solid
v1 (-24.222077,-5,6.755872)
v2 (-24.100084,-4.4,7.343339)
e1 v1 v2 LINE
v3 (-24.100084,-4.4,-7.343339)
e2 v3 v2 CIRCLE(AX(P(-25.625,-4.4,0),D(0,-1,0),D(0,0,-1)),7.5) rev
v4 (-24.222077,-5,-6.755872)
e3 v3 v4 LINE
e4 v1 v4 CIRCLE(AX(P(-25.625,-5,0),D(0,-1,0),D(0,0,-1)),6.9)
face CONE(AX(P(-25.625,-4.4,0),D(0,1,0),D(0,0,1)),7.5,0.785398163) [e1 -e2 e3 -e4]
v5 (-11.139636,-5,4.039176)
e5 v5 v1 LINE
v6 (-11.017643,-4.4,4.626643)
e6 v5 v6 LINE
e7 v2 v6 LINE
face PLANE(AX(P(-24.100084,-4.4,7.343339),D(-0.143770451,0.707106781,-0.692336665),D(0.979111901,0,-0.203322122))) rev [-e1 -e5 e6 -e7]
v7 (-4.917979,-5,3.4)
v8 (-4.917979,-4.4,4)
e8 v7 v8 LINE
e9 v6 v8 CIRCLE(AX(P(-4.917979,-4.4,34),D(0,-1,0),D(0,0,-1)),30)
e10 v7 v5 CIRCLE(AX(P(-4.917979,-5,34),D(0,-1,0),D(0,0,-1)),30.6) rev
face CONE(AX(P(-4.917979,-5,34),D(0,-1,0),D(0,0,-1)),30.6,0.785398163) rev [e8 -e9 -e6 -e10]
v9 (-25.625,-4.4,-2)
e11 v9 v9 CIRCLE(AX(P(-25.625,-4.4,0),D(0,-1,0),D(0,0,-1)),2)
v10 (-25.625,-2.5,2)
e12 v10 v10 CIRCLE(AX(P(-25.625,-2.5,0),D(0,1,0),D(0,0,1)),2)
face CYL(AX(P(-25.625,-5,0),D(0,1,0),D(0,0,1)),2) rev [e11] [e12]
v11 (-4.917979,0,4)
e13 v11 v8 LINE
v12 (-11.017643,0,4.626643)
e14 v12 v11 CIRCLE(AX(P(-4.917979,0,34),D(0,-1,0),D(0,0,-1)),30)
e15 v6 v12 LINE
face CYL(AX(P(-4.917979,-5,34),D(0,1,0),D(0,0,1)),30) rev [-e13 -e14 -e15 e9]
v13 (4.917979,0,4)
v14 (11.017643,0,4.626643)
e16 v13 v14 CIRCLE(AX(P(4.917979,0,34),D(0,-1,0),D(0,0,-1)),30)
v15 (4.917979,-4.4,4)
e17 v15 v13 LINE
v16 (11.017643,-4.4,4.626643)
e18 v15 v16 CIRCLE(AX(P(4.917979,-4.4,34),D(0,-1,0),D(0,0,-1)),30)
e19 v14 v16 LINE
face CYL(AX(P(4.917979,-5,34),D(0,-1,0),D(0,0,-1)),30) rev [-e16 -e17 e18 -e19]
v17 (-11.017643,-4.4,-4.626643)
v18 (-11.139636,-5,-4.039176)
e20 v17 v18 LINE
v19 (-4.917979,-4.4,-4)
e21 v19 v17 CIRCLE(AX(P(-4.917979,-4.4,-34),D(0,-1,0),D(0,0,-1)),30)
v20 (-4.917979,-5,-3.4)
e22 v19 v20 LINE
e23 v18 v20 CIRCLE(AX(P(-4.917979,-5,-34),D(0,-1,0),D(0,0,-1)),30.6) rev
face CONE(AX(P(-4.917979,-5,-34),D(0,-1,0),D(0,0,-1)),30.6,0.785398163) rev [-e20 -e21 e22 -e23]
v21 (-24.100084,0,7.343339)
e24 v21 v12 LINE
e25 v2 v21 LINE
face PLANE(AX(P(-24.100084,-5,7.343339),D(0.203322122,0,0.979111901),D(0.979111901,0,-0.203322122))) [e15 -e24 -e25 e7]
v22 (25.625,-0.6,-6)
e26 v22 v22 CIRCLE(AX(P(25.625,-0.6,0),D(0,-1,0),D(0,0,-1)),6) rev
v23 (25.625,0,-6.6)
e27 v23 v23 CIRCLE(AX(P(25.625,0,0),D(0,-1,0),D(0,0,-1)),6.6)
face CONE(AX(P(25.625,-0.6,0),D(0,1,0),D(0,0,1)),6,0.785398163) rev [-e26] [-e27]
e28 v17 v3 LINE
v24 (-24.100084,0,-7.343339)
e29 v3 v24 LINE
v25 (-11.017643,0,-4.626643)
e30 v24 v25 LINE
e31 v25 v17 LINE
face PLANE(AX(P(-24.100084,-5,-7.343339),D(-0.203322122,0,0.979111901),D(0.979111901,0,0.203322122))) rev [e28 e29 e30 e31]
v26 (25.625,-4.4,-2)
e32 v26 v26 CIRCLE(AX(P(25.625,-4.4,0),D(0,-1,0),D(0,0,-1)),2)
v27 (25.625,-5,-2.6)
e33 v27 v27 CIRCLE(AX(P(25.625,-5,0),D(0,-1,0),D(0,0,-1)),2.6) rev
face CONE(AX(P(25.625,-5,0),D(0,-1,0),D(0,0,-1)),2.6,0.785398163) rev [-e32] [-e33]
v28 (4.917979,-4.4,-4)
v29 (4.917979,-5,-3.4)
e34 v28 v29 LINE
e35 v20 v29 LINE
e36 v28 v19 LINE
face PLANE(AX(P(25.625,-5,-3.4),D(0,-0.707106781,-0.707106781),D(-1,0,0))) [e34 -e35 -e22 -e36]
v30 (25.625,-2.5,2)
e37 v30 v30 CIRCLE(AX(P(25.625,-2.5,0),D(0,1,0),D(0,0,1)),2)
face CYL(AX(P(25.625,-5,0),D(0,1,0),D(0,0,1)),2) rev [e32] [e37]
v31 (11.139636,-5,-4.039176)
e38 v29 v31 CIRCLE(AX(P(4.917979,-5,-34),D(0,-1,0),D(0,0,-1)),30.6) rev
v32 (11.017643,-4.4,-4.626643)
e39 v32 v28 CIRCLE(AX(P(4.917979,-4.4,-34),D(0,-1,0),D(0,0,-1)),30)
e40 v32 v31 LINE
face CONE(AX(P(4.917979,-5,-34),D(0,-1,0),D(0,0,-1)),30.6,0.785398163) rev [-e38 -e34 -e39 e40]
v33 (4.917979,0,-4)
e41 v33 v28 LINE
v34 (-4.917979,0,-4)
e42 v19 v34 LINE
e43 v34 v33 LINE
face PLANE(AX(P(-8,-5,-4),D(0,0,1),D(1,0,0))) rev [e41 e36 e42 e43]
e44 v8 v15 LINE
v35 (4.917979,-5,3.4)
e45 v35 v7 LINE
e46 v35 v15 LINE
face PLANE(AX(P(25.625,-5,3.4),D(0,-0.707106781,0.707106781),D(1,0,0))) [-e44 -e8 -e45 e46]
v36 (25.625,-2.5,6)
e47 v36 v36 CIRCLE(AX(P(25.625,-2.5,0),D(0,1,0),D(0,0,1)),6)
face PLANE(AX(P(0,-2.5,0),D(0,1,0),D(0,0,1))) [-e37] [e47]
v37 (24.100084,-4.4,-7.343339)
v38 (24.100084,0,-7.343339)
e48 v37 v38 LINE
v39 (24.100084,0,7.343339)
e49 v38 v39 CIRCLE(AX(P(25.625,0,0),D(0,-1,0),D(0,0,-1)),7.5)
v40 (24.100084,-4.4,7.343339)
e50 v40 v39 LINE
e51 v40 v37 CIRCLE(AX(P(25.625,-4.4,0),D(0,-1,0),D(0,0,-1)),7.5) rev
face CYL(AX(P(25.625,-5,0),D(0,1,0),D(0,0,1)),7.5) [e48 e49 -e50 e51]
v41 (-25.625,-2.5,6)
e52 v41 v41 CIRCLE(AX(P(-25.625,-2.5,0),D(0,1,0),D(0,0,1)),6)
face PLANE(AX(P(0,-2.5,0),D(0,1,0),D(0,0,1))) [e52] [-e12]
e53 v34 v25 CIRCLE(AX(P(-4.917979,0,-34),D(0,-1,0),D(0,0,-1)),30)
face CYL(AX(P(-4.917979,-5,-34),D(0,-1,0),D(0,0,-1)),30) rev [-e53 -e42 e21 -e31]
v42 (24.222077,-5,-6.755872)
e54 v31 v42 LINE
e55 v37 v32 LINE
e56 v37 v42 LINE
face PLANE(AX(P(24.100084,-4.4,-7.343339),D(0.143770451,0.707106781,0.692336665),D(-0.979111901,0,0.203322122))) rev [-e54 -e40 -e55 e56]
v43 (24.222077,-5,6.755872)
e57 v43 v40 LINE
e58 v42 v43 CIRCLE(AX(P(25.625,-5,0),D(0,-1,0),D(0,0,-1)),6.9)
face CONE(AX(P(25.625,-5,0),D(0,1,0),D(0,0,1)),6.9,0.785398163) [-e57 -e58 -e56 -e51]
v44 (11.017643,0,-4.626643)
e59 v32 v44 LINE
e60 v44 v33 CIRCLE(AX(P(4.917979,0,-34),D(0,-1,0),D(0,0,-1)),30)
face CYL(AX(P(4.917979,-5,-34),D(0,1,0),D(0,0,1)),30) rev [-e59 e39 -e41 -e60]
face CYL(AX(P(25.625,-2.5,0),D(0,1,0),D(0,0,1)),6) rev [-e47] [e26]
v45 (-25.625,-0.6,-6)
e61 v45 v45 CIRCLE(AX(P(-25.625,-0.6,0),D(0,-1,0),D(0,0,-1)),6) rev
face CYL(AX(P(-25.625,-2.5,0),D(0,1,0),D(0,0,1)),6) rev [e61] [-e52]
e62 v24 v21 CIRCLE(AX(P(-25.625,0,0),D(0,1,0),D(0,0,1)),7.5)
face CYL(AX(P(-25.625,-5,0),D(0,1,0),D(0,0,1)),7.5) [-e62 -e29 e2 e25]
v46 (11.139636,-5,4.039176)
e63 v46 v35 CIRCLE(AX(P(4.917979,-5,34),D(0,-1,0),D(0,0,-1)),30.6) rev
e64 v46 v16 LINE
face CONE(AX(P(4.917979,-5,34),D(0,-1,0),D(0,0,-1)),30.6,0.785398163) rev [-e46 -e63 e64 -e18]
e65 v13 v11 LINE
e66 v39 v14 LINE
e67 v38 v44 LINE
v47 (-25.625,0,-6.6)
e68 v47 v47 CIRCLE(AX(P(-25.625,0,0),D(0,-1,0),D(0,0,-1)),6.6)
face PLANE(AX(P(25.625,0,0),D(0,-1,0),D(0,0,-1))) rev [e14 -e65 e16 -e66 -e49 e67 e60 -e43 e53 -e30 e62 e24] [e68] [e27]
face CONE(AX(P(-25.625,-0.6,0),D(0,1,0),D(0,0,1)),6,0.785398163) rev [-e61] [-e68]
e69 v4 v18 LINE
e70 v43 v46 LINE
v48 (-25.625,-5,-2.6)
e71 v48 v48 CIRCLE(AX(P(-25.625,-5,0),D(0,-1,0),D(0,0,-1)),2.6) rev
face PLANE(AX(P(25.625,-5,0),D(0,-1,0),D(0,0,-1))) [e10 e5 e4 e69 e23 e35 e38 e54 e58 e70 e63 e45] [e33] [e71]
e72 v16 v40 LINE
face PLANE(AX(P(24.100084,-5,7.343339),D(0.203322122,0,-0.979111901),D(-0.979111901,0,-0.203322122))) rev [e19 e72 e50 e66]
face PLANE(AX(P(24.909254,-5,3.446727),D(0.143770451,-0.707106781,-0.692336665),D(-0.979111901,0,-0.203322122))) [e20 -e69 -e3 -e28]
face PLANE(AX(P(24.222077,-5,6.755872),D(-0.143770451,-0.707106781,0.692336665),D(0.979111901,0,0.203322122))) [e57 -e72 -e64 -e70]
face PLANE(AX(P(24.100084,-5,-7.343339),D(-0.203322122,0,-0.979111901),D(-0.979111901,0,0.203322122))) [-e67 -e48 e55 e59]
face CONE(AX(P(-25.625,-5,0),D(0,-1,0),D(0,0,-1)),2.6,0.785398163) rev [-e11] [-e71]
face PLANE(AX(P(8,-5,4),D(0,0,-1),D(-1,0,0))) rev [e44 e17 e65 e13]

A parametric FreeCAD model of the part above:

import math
import FreeCAD as App
import Part
import Sketcher


def edges_at(feature, points):
    """Names of the edges that pass closest to the given points."""
    edges = feature.Shape.Edges
    near = lambda p: min(range(len(edges)), key=lambda i: edges[i].distToShape(Part.Vertex(*p))[0])
    return sorted({f"Edge{near(p) + 1}" for p in points})

doc = App.newDocument("Part")
body = doc.addObject("PartDesign::Body", "Body")

# Sketch on XZ plane
sketch1 = body.newObject("Sketcher::SketchObject", "Sketch")
sketch1.AttachmentSupport = (doc.getObject("XZ_Plane"), [""])
sketch1.MapMode = "FlatFace"
sketch1.addGeometry([
    Part.LineSegment(App.Vector(8, -4, 0), App.Vector(-8, -4, 0)),  # 0
    Part.LineSegment(App.Vector(-8, -4, 0), App.Vector(-24.1, -7.3, 0)),  # 1
    Part.ArcOfCircle(Part.Circle(App.Vector(-25.6, 0, 0), App.Vector(0, 0, 1), 7.5), math.radians(78), math.radians(282)),  # 2
    Part.LineSegment(App.Vector(-24.1, 7.3, 0), App.Vector(-8, 4, 0)),  # 3
    Part.LineSegment(App.Vector(-8, 4, 0), App.Vector(8, 4, 0)),  # 4
    Part.LineSegment(App.Vector(8, 4, 0), App.Vector(24.1, 7.3, 0)),  # 5
    Part.ArcOfCircle(Part.Circle(App.Vector(25.6, 0, 0), App.Vector(0, 0, 1), 7.5), math.radians(-102), math.radians(102)),  # 6
    Part.LineSegment(App.Vector(24.1, -7.3, 0), App.Vector(8, -4, 0)),  # 7
    Part.Circle(App.Vector(25.6, 0, 0), App.Vector(0, 0, 1), 2),  # 8
    Part.Circle(App.Vector(-25.6, 0, 0), App.Vector(0, 0, 1), 2),  # 9
], False)
sketch1.addConstraint([
    Sketcher.Constraint("Coincident", 0, 2, 1, 1),
    Sketcher.Constraint("Tangent", 1, 2, 2, 2),
    Sketcher.Constraint("Tangent", 2, 1, 3, 1),
    Sketcher.Constraint("Coincident", 3, 2, 4, 1),
    Sketcher.Constraint("Coincident", 4, 2, 5, 1),
    Sketcher.Constraint("Tangent", 5, 2, 6, 2),
    Sketcher.Constraint("Tangent", 6, 1, 7, 1),
    Sketcher.Constraint("Coincident", 7, 2, 0, 1),
    Sketcher.Constraint("Horizontal", 0),
    Sketcher.Constraint("Horizontal", 4),
    Sketcher.Constraint("Coincident", 8, 3, 6, 3),
    Sketcher.Constraint("Coincident", 9, 3, 2, 3),
    Sketcher.Constraint("Equal", 2, 6),
    Sketcher.Constraint("Equal", 8, 9),
    Sketcher.Constraint("Symmetric", 2, 3, 6, 3, -1, 1),
    Sketcher.Constraint("Symmetric", 0, 2, 4, 2, -1, 1),
    Sketcher.Constraint("Symmetric", 2, 1, 5, 2, -2),
    Sketcher.Constraint("Parallel", 3, 7),
    Sketcher.Constraint("Diameter", 8, 4.0),
    Sketcher.Constraint("Radius", 2, 7.5),
    Sketcher.Constraint("DistanceX", 0, 2, 0, 1, 16.0),
    Sketcher.Constraint("DistanceY", 0, 2, -1, 1, 4.0),
    Sketcher.Constraint("DistanceX", 2, 3, 6, 3, 51.25),
])
pad1 = body.newObject("PartDesign::Pad", "Pad")
pad1.Profile = sketch1
pad1.Length = 5

# Sketch on XZ plane
sketch2 = body.newObject("Sketcher::SketchObject", "Sketch001")
sketch2.AttachmentSupport = (doc.getObject("XZ_Plane"), [""])
sketch2.MapMode = "FlatFace"
sketch2.addGeometry([
    Part.Circle(App.Vector(26, 0, 0), App.Vector(0, 0, 1), 6),
    Part.Circle(App.Vector(-26, 0, 0), App.Vector(0, 0, 1), 6),
], False)
sketch2.addConstraint([
    Sketcher.Constraint("Equal", 0, 1),
    Sketcher.Constraint("Symmetric", 0, 3, 1, 3, -1, 1),
    Sketcher.Constraint("PointOnObject", 0, 3, -1),
    Sketcher.Constraint("Diameter", 0, 12.0),
    Sketcher.Constraint("DistanceX", 1, 3, 0, 3, 51.25),
])
pocket1 = body.newObject("PartDesign::Pocket", "Pocket")
pocket1.Profile = sketch2
pocket1.Length = 2.5
pocket1.Reversed = True
doc.recompute()

fillet = body.newObject("PartDesign::Fillet", "Fillet")
fillet.Base = (pocket1, edges_at(pocket1, [
    (-8, -2.5, 4),
    (8, -2.5, 4),
    (8, -2.5, -4),
    (-8, -2.5, -4),
]))
fillet.Radius = 30
doc.recompute()

chamfer = body.newObject("PartDesign::Chamfer", "Chamfer")
chamfer.Base = (fillet, edges_at(fillet, [
    (17.559, -5, -5.985),
    (33.125, -5, 0),
    (17.559, -5, 5.985),
    (-25.625, -5, -2),
    (25.625, -5, -2),
    (-17.559, -5, 5.985),
    (-33.125, -5, 0),
    (0, -5, -4),
    (-17.559, -5, -5.985),
    (0, -5, 4),
    (7.984, -5, -4.157),
    (-7.984, -5, -4.157),
    (7.984, -5, 4.157),
    (-7.984, -5, 4.157),
]))
chamfer.Size = 0.6
doc.recompute()

chamfer2 = body.newObject("PartDesign::Chamfer", "Chamfer001")
chamfer2.Base = (chamfer, edges_at(chamfer, [(25.625, 0, -6), (-25.625, 0, -6)]))
chamfer2.Size = 0.6

doc.recompute()
